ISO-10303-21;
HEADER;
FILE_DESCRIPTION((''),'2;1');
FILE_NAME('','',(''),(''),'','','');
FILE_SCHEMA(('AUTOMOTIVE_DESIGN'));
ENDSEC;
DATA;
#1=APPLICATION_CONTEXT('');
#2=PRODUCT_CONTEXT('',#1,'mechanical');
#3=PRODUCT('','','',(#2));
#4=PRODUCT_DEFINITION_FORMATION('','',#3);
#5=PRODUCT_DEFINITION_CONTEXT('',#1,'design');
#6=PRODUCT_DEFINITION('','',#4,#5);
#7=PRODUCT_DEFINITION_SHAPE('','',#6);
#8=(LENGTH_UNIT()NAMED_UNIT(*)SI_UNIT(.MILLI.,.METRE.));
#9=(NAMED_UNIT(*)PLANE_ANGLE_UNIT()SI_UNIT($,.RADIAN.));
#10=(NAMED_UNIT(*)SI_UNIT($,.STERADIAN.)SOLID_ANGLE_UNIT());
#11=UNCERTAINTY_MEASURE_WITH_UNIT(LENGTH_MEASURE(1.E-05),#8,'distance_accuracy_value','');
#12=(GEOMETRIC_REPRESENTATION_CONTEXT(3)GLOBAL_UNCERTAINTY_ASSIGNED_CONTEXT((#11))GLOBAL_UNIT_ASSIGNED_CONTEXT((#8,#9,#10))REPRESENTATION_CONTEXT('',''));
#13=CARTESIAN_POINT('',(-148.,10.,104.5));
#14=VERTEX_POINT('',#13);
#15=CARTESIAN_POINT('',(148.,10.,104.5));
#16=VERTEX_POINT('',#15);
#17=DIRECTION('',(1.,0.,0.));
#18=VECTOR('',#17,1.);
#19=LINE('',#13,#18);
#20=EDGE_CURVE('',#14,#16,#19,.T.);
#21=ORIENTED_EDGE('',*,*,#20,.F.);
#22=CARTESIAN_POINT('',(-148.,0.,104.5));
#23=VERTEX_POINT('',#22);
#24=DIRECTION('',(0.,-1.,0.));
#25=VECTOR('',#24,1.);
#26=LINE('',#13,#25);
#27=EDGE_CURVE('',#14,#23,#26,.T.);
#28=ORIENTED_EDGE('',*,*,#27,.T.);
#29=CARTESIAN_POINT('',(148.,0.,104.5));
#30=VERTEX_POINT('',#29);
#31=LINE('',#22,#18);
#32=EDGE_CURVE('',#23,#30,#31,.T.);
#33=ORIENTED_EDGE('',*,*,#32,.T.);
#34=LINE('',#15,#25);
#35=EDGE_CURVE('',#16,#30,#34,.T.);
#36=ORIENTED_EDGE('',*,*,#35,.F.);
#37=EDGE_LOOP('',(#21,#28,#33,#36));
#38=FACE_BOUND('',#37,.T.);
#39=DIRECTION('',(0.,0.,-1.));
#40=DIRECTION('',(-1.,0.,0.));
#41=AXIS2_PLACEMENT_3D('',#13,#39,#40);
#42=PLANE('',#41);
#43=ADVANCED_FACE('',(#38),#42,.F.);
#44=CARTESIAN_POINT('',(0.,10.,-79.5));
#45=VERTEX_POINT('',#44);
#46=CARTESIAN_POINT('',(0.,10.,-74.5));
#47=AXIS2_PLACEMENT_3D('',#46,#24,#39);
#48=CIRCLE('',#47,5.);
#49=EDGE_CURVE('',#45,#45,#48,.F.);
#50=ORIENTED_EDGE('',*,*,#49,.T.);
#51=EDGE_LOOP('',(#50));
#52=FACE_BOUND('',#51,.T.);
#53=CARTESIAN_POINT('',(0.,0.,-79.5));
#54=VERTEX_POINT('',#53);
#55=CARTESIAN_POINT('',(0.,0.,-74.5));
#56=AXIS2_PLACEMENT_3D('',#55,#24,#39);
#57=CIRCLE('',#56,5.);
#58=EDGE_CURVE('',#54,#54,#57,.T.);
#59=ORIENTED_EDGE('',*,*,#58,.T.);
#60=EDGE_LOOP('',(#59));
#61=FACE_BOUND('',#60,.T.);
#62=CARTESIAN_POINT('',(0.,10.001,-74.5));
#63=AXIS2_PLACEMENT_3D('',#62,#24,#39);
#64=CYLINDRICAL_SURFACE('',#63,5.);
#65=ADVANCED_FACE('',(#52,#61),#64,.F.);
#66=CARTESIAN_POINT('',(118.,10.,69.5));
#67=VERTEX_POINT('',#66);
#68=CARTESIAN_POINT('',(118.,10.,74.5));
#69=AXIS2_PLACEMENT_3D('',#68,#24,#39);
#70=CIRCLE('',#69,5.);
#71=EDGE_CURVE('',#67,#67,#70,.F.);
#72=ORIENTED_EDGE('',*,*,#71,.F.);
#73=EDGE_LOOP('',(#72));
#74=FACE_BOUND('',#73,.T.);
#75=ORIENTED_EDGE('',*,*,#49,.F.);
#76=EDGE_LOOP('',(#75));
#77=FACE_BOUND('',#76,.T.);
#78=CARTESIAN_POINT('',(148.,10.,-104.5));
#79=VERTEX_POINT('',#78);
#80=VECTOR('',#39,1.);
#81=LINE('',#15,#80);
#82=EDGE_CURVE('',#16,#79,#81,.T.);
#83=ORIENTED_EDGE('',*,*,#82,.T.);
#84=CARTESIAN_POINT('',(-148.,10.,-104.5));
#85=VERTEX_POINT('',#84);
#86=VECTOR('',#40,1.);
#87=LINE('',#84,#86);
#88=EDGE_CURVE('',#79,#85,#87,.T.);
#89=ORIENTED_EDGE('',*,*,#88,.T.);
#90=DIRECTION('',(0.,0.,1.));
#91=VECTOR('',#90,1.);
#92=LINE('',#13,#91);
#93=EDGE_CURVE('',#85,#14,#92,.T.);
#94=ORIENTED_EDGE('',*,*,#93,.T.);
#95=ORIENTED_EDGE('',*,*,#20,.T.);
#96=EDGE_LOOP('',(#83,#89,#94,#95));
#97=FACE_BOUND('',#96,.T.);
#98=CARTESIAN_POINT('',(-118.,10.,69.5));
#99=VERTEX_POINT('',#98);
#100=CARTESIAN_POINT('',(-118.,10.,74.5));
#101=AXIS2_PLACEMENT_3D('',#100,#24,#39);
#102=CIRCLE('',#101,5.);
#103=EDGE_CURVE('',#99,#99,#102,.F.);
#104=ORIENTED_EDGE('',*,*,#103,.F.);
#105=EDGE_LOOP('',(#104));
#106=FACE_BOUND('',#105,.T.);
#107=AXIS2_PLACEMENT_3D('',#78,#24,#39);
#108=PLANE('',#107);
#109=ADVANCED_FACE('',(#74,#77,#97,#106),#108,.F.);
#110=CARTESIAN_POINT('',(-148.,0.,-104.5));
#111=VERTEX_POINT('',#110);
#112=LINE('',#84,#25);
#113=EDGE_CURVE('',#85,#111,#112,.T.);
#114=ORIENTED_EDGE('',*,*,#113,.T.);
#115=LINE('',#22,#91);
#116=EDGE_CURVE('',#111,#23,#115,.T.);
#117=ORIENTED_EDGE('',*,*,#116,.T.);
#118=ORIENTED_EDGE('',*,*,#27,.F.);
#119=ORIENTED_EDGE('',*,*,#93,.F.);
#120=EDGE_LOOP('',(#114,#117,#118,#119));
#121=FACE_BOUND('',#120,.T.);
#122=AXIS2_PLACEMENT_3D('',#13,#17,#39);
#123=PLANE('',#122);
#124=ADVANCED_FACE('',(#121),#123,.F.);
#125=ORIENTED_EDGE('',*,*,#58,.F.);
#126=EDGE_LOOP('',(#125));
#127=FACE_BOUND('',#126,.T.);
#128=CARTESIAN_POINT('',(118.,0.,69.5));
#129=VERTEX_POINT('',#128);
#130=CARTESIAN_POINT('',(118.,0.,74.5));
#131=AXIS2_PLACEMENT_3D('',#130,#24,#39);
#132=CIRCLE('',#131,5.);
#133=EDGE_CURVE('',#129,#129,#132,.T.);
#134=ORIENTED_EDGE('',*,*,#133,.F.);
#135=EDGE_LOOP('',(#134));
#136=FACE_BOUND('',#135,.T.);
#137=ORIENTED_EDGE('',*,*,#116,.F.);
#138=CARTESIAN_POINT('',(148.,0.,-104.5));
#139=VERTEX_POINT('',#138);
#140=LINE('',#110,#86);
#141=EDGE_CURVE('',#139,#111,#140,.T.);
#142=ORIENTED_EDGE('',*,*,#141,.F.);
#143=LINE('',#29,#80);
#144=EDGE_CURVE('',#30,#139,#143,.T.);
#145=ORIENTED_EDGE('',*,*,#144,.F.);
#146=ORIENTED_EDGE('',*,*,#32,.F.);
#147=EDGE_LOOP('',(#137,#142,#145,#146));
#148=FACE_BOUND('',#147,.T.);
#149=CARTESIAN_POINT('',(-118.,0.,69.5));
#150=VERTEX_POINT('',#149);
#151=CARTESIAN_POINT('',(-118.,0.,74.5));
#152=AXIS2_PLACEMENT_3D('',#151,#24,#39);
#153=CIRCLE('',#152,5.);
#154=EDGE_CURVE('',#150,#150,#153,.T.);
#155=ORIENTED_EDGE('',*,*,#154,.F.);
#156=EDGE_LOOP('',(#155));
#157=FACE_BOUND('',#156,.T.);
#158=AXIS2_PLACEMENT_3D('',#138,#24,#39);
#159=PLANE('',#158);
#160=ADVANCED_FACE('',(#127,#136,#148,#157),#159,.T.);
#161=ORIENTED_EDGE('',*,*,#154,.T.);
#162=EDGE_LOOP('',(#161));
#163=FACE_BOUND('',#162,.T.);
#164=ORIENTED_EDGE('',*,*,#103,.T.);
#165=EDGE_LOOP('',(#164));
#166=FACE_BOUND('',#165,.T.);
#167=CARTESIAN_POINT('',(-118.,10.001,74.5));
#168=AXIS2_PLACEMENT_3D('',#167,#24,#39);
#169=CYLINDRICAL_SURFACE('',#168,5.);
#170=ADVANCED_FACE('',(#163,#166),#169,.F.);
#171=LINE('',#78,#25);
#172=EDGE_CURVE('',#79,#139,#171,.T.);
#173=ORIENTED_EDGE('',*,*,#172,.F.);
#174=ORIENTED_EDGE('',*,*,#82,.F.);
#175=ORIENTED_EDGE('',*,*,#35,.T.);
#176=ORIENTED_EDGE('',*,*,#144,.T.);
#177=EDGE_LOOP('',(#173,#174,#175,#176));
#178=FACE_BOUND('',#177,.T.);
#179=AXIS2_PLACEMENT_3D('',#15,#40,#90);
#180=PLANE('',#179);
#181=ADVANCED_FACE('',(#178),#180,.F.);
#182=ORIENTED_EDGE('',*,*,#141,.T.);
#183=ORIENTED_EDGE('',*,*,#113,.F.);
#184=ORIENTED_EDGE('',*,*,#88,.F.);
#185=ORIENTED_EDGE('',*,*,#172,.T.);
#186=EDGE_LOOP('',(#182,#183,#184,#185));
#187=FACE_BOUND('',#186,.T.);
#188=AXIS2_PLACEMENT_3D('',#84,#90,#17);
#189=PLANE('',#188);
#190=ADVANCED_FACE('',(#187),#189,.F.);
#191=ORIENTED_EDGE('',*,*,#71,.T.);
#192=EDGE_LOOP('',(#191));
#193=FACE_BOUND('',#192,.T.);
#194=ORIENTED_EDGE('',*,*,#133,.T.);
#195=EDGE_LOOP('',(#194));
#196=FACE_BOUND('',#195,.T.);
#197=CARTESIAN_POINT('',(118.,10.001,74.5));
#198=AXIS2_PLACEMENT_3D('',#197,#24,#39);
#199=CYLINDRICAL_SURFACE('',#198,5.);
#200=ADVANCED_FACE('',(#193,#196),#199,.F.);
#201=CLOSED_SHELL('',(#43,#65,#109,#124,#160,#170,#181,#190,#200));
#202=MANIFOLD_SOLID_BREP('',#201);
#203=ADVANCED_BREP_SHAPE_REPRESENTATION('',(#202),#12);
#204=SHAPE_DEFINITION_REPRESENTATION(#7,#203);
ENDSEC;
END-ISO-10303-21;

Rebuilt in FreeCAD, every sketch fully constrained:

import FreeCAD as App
import Part
import Sketcher
from FreeCAD import Vector


def add_polygon(sketch, points):
    """Adds a closed chain of lines whose ends are joined by coincident constraints."""
    first, n = sketch.GeometryCount, len(points)
    for a, b in zip(points, points[1:] + points[:1]):
        sketch.addGeometry(Part.LineSegment(App.Vector(*a, 0), App.Vector(*b, 0)), False)
    for i in range(n):
        sketch.addConstraint(Sketcher.Constraint("Coincident", first + i, 2, first + (i + 1) % n, 1))

doc = App.newDocument("Part")
body = doc.addObject("PartDesign::Body", "Body")

# Sketch on XZ plane
sketch1 = body.newObject("Sketcher::SketchObject", "Sketch")
sketch1.AttachmentSupport = (doc.getObject("XZ_Plane"), [""])
sketch1.MapMode = "FlatFace"
add_polygon(sketch1, [(-148, -104), (-148, 104), (148, 104), (148, -104)])  # lines 0-3
sketch1.addConstraint([
    Sketcher.Constraint("Vertical", 0),
    Sketcher.Constraint("Horizontal", 1),
    Sketcher.Constraint("Vertical", 2),
    Sketcher.Constraint("Horizontal", 3),
    Sketcher.Constraint("Symmetric", 0, 2, 2, 2, -1, 1),
    Sketcher.Constraint("DistanceX", 1, 1, 1, 2, 296.0),
    Sketcher.Constraint("DistanceY", 0, 1, 0, 2, 209.0),
])
pad1 = body.newObject("PartDesign::Pad", "Pad")
pad1.Profile = sketch1
pad1.Length = 10
pad1.Reversed = True

# Sketch on XZ plane
sketch2 = body.newObject("Sketcher::SketchObject", "Sketch001")
sketch2.AttachmentSupport = (doc.getObject("XZ_Plane"), [""])
sketch2.MapMode = "FlatFace"
sketch2.addGeometry(Part.Circle(Vector(-118, 74, 0), Vector(0, 0, 1), 5), False)
sketch2.addConstraint([
    Sketcher.Constraint("Diameter", 0, 10.0),
    Sketcher.Constraint("DistanceX", 0, 3, -1, 1, 118.0),
    Sketcher.Constraint("DistanceY", -1, 1, 0, 3, 74.5),
])
pocket1 = body.newObject("PartDesign::Pocket", "Pocket")
pocket1.Profile = sketch2
pocket1.Type = "UpToFirst"

# Sketch on XZ plane
sketch3 = body.newObject("Sketcher::SketchObject", "Sketch002")
sketch3.AttachmentSupport = (doc.getObject("XZ_Plane"), [""])
sketch3.MapMode = "FlatFace"
sketch3.addGeometry(Part.Circle(Vector(118, 74, 0), Vector(0, 0, 1), 5), False)
sketch3.addConstraint([
    Sketcher.Constraint("Diameter", 0, 10.0),
    Sketcher.Constraint("DistanceX", -1, 1, 0, 3, 118.0),
    Sketcher.Constraint("DistanceY", -1, 1, 0, 3, 74.5),
])
pocket2 = body.newObject("PartDesign::Pocket", "Pocket001")
pocket2.Profile = sketch3
pocket2.Type = "UpToFirst"

# Sketch on XZ plane
sketch4 = body.newObject("Sketcher::SketchObject", "Sketch003")
sketch4.AttachmentSupport = (doc.getObject("XZ_Plane"), [""])
sketch4.MapMode = "FlatFace"
sketch4.addGeometry(Part.Circle(Vector(0, -74, 0), Vector(0, 0, 1), 5), False)
sketch4.addConstraint([
    Sketcher.Constraint("PointOnObject", 0, 3, -2),
    Sketcher.Constraint("Diameter", 0, 10.0),
    Sketcher.Constraint("DistanceY", 0, 3, -1, 1, 74.5),
])
pocket3 = body.newObject("PartDesign::Pocket", "Pocket002")
pocket3.Profile = sketch4
pocket3.Type = "UpToFirst"

doc.recompute()
